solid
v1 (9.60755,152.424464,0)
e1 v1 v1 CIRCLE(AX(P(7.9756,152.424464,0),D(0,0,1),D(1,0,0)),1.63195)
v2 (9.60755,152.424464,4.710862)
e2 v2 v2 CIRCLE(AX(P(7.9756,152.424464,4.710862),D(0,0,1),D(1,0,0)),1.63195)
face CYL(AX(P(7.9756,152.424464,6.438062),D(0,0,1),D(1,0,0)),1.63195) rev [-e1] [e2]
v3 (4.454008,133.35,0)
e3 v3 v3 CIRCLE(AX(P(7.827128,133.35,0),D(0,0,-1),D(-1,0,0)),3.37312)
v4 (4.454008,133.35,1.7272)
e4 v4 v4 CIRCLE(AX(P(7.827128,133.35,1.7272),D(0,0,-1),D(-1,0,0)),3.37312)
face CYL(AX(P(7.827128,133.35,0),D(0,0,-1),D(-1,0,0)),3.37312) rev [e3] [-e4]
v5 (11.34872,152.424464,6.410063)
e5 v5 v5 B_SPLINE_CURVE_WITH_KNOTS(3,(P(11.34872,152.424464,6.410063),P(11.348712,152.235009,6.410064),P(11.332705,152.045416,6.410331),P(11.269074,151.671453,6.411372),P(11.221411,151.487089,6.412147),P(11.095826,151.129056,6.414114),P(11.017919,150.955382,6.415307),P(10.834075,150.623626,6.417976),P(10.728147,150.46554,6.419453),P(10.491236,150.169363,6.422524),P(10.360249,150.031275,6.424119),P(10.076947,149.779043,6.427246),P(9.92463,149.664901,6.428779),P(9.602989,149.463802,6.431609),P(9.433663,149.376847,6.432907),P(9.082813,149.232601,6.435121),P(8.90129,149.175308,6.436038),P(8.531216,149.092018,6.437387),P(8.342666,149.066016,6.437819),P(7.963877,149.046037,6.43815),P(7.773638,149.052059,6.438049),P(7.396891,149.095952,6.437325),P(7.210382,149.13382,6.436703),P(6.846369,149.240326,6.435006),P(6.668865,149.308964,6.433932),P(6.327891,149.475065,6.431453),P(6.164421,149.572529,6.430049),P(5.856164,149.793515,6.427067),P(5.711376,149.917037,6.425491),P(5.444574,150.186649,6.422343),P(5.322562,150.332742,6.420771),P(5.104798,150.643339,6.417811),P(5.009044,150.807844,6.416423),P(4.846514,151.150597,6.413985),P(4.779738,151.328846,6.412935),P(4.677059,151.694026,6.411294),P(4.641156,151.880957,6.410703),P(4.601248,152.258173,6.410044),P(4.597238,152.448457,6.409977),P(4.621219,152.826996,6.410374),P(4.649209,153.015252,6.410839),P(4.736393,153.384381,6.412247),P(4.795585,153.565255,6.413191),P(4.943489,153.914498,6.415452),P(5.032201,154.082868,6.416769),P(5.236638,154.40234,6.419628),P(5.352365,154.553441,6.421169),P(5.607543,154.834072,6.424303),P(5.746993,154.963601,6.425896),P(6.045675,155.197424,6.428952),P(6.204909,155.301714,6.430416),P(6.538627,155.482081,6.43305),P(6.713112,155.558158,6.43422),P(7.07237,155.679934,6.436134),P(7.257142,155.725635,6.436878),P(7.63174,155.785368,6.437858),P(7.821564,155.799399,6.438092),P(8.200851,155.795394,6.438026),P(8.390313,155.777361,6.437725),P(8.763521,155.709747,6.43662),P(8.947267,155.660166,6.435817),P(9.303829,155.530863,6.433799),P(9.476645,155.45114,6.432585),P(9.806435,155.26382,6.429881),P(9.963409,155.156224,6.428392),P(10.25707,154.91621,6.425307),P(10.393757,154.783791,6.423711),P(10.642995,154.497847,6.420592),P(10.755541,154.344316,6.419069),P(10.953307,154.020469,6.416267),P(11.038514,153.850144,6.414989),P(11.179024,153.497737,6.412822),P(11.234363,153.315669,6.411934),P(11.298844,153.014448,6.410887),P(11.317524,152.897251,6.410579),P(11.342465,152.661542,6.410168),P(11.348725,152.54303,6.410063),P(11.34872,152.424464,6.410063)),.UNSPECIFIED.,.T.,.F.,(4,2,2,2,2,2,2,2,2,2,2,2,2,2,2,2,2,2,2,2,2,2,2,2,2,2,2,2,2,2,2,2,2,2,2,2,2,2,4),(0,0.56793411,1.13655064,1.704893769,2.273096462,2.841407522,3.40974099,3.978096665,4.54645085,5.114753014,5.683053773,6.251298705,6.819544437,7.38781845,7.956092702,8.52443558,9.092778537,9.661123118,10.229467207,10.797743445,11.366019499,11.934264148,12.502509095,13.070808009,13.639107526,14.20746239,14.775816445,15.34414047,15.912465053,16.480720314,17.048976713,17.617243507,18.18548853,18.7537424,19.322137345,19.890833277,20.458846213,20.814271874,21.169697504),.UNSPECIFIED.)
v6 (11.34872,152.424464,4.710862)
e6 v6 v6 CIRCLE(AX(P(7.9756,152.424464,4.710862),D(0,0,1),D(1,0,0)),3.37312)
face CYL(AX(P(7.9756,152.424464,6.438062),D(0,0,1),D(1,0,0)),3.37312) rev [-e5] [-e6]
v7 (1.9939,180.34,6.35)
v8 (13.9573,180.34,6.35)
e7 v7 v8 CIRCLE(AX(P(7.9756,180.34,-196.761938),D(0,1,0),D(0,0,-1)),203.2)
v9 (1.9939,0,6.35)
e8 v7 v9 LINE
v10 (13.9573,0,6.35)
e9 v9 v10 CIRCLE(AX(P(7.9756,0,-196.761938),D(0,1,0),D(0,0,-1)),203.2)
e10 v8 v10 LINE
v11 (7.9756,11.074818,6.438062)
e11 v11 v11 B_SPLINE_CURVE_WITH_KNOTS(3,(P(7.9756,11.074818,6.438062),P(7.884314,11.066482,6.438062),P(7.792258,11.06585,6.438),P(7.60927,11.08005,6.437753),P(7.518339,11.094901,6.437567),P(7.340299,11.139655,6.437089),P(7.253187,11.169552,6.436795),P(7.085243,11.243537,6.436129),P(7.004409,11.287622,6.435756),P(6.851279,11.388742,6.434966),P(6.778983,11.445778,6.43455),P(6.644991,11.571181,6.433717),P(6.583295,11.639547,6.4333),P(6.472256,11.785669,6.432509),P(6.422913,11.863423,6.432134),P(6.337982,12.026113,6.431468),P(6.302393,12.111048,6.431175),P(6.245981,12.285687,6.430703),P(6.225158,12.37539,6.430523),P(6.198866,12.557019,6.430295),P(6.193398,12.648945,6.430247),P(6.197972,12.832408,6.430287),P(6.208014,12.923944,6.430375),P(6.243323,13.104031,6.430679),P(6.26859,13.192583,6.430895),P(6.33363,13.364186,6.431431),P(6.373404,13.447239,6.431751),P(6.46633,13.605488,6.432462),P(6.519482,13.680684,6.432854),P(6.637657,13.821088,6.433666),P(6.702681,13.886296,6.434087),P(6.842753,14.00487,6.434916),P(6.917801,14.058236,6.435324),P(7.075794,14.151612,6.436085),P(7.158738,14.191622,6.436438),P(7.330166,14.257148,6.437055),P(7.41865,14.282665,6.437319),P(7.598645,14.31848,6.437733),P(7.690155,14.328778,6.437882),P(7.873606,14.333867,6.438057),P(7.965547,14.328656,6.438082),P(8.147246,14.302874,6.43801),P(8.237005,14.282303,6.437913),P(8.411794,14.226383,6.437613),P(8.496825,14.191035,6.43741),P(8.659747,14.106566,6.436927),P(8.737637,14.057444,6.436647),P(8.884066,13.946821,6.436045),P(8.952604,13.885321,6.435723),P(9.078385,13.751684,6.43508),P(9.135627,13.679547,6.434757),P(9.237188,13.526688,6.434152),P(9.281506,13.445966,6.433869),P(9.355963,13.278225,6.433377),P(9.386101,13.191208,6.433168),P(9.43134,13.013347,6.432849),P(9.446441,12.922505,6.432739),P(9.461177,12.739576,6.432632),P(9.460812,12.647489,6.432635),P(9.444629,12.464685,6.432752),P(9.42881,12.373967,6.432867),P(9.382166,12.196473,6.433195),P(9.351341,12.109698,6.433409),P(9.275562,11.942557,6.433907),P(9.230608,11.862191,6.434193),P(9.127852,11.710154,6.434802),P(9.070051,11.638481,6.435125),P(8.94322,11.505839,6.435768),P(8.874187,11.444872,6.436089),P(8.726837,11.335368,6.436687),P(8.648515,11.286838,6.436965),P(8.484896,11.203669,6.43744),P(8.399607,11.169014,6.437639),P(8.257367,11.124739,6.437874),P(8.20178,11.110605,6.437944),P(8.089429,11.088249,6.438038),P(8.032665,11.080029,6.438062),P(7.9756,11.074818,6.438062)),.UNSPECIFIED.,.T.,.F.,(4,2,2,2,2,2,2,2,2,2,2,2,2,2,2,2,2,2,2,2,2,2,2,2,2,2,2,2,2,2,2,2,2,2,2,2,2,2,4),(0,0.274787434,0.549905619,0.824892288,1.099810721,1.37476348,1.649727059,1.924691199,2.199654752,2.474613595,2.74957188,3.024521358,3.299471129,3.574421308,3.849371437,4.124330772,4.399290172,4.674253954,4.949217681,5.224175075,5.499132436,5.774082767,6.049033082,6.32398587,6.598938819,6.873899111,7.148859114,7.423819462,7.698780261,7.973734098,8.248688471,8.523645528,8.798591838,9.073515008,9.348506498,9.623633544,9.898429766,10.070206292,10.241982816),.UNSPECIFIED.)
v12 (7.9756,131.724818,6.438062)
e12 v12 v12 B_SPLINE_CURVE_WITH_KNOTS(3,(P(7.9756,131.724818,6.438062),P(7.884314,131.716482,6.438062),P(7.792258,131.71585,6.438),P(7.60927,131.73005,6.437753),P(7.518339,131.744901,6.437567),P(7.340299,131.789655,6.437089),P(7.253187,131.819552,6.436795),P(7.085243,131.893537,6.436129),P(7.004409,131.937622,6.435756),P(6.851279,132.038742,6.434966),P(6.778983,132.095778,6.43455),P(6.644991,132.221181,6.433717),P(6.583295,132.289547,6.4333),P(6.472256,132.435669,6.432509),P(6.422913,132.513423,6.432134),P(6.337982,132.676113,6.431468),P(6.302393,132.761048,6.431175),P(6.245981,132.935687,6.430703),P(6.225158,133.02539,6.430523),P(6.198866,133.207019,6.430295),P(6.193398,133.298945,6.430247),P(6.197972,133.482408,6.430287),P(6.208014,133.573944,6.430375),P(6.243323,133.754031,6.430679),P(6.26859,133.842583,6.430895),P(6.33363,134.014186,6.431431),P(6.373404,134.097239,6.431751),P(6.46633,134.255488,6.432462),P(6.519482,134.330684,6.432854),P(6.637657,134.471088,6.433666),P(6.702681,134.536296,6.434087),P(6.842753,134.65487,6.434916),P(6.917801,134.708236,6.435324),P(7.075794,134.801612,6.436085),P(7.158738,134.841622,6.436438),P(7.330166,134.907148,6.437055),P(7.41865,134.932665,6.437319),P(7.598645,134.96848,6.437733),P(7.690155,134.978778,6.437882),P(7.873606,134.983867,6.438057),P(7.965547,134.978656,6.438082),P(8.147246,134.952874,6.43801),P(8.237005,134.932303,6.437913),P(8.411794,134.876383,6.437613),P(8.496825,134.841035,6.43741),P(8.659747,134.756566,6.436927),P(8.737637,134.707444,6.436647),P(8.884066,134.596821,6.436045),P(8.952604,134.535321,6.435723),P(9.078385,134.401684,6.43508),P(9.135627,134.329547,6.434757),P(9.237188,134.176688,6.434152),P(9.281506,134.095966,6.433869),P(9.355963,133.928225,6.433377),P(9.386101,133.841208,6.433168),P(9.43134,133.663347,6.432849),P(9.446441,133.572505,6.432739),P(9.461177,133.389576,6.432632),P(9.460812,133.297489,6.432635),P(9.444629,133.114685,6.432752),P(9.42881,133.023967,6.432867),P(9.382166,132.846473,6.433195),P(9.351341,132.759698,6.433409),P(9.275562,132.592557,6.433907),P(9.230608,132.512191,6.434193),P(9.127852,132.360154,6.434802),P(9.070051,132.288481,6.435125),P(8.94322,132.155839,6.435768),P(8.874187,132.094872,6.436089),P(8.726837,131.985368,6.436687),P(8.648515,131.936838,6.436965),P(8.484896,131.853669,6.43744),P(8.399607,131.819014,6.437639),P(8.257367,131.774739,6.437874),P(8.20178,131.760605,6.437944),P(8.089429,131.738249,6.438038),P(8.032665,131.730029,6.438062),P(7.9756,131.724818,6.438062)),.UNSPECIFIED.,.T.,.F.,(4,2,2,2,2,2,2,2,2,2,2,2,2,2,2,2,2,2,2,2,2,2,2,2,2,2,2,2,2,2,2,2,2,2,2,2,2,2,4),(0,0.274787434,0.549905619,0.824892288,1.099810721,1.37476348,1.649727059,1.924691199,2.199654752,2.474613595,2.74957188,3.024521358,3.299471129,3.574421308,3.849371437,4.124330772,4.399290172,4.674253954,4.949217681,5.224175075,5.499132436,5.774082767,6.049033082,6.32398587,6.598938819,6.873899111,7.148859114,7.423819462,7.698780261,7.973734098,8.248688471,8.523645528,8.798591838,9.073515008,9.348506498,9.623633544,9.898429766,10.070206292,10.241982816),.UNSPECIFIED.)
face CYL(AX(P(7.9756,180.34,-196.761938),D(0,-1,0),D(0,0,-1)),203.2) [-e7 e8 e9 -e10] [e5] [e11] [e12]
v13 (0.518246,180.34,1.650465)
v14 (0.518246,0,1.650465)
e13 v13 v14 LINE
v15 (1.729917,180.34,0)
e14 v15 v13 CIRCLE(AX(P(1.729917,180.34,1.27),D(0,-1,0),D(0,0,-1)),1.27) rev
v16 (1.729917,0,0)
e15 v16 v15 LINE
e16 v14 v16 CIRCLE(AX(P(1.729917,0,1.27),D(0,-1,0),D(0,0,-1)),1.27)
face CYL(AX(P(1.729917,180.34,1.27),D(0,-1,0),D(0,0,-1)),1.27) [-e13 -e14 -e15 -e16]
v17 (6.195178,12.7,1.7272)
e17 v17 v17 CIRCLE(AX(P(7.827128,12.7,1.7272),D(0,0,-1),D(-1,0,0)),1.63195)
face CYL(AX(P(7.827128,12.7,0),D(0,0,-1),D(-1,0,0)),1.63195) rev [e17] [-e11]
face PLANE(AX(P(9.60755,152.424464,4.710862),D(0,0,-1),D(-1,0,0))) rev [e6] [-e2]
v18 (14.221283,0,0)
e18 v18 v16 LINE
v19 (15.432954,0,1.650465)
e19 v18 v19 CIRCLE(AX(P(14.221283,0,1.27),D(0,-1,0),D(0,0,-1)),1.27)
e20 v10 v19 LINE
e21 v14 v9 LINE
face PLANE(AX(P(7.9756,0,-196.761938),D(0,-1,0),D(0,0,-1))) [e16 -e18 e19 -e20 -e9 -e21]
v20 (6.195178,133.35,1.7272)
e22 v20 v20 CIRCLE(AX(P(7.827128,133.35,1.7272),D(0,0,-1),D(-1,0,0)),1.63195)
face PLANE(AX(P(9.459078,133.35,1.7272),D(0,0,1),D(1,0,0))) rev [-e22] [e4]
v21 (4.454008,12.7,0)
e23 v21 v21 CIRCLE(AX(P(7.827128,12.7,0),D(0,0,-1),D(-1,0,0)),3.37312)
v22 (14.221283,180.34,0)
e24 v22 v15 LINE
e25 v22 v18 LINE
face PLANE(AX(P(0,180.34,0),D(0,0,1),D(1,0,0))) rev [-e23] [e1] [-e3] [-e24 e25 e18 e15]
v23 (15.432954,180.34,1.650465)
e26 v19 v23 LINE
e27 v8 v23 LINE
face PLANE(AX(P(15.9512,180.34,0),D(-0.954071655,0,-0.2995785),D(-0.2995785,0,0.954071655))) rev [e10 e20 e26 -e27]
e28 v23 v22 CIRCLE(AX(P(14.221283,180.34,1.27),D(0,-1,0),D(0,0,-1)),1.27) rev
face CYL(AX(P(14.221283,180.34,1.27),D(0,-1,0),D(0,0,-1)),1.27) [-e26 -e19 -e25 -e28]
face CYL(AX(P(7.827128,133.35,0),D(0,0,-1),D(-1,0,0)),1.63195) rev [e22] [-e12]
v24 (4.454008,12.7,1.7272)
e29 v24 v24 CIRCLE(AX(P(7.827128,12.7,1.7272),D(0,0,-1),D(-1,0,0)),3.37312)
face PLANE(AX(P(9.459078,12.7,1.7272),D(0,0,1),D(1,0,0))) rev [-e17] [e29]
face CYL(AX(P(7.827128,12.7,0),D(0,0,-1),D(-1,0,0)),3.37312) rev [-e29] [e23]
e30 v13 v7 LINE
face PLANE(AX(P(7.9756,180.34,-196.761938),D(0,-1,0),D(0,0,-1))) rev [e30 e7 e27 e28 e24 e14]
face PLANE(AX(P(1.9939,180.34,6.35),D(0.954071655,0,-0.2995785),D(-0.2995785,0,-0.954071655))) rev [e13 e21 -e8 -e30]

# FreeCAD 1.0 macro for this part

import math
import FreeCAD as App
import Part
import Sketcher
from FreeCAD import Vector
Q = App.Units.Quantity


def edges_at(feature, points):
    """Names of the edges that pass closest to the given points."""
    edges = feature.Shape.Edges
    near = lambda p: min(range(len(edges)), key=lambda i: edges[i].distToShape(Part.Vertex(*p))[0])
    return sorted({f"Edge{near(p) + 1}" for p in points})

doc = App.newDocument("Part")
body = doc.addObject("PartDesign::Body", "Body")

# Sketch on XZ plane
sketch1 = body.newObject("Sketcher::SketchObject", "Sketch")
sketch1.AttachmentSupport = (doc.getObject("XZ_Plane"), [""])
sketch1.MapMode = "FlatFace"
sketch1.addGeometry([
    Part.LineSegment(Vector(16, 0, 0), Vector(0, 0, 0)),
    Part.LineSegment(Vector(0, 0, 0), Vector(2, 6, 0)),
    Part.ArcOfCircle(Part.Circle(Vector(8, -197, 0), Vector(0, 0, 1), 203), math.radians(88.31), math.radians(91.69)),
    Part.LineSegment(Vector(14, 6, 0), Vector(16, 0, 0)),
], False)
sketch1.addConstraint([
    Sketcher.Constraint("Coincident", 0, 2, 1, 1),
    Sketcher.Constraint("Coincident", 1, 2, 2, 2),
    Sketcher.Constraint("Coincident", 2, 1, 3, 1),
    Sketcher.Constraint("Coincident", 3, 2, 0, 1),
    Sketcher.Constraint("Horizontal", 0),
    Sketcher.Constraint("Coincident", 0, 2, -1, 1),
    Sketcher.Constraint("Horizontal", 1, 2, 2, 1),
    Sketcher.Constraint("Equal", 1, 3),
    Sketcher.Constraint("Radius", 2, Q("8 in")),
    Sketcher.Constraint("DistanceX", 0, 2, 0, 1, Q("0.628 in")),
    Sketcher.Constraint("DistanceY", -1, 1, 1, 2, Q("0.25 in")),
    Sketcher.Constraint("DistanceX", 1, 2, 2, 1, Q("0.471 in")),
])
pad1 = body.newObject("PartDesign::Pad", "Pad")
pad1.Profile = sketch1
pad1.Length = Q("7.1 in")
pad1.Reversed = True

# Sketch on XY plane
sketch2 = body.newObject("Sketcher::SketchObject", "Sketch001")
sketch2.AttachmentSupport = (doc.getObject("XY_Plane"), [""])
sketch2.MapMode = "FlatFace"
sketch2.addGeometry([
    Part.Circle(Vector(7.8, 133.3, 0), Vector(0, 0, 1), 1.6),
    Part.Circle(Vector(7.8, 12.7, 0), Vector(0, 0, 1), 1.6),
], False)
sketch2.addConstraint([
    Sketcher.Constraint("Equal", 0, 1),
    Sketcher.Constraint("Vertical", 0, 3, 1, 3),
    Sketcher.Constraint("Diameter", 0, Q("0.1285 in")),
    Sketcher.Constraint("DistanceY", -1, 1, 1, 3, Q("0.5 in")),
    Sketcher.Constraint("DistanceY", -1, 1, 0, 3, Q("5.25 in")),
    Sketcher.Constraint("DistanceX", -1, 1, 0, 3, 7.827128),
])
doc.recompute()
hole = body.newObject("PartDesign::Hole", "Hole")
hole.Profile = sketch2
hole.ThreadType = "None"
hole.Diameter = Q("0.1285 in")
hole.DepthType = "ThroughAll"
hole.HoleCutType = "Counterbore"
hole.HoleCutDiameter = Q("0.2656 in")
hole.HoleCutDepth = Q("0.068 in")
hole.Reversed = True
doc.recompute()

fillet = body.newObject("PartDesign::Fillet", "Fillet")
fillet.Base = (hole, edges_at(hole, [(0, 90.17, 0), (15.951, 90.17, 0)]))
fillet.Radius = Q("0.05 in")

# Sketch on XY plane
sketch3 = body.newObject("Sketcher::SketchObject", "Sketch002")
sketch3.AttachmentSupport = (doc.getObject("XY_Plane"), [""])
sketch3.MapMode = "FlatFace"
sketch3.AttachmentOffset = App.Placement(Vector(0, 0, 6.438062), App.Rotation())
sketch3.addGeometry(Part.Circle(Vector(8, 152.4, 0), Vector(0, 0, 1), 1.6), False)
sketch3.addConstraint([
    Sketcher.Constraint("Diameter", 0, Q("0.1285 in")),
    Sketcher.Constraint("DistanceX", -1, 1, 0, 3, Q("0.314 in")),
    Sketcher.Constraint("DistanceY", -1, 1, 0, 3, 152.424464),
])
doc.recompute()
hole2 = body.newObject("PartDesign::Hole", "Hole001")
hole2.Profile = sketch3
hole2.ThreadType = "None"
hole2.Diameter = Q("0.1285 in")
hole2.DepthType = "ThroughAll"
hole2.HoleCutType = "Counterbore"
hole2.HoleCutDiameter = Q("0.2656 in")
hole2.HoleCutDepth = Q("0.068 in")

doc.recompute()
